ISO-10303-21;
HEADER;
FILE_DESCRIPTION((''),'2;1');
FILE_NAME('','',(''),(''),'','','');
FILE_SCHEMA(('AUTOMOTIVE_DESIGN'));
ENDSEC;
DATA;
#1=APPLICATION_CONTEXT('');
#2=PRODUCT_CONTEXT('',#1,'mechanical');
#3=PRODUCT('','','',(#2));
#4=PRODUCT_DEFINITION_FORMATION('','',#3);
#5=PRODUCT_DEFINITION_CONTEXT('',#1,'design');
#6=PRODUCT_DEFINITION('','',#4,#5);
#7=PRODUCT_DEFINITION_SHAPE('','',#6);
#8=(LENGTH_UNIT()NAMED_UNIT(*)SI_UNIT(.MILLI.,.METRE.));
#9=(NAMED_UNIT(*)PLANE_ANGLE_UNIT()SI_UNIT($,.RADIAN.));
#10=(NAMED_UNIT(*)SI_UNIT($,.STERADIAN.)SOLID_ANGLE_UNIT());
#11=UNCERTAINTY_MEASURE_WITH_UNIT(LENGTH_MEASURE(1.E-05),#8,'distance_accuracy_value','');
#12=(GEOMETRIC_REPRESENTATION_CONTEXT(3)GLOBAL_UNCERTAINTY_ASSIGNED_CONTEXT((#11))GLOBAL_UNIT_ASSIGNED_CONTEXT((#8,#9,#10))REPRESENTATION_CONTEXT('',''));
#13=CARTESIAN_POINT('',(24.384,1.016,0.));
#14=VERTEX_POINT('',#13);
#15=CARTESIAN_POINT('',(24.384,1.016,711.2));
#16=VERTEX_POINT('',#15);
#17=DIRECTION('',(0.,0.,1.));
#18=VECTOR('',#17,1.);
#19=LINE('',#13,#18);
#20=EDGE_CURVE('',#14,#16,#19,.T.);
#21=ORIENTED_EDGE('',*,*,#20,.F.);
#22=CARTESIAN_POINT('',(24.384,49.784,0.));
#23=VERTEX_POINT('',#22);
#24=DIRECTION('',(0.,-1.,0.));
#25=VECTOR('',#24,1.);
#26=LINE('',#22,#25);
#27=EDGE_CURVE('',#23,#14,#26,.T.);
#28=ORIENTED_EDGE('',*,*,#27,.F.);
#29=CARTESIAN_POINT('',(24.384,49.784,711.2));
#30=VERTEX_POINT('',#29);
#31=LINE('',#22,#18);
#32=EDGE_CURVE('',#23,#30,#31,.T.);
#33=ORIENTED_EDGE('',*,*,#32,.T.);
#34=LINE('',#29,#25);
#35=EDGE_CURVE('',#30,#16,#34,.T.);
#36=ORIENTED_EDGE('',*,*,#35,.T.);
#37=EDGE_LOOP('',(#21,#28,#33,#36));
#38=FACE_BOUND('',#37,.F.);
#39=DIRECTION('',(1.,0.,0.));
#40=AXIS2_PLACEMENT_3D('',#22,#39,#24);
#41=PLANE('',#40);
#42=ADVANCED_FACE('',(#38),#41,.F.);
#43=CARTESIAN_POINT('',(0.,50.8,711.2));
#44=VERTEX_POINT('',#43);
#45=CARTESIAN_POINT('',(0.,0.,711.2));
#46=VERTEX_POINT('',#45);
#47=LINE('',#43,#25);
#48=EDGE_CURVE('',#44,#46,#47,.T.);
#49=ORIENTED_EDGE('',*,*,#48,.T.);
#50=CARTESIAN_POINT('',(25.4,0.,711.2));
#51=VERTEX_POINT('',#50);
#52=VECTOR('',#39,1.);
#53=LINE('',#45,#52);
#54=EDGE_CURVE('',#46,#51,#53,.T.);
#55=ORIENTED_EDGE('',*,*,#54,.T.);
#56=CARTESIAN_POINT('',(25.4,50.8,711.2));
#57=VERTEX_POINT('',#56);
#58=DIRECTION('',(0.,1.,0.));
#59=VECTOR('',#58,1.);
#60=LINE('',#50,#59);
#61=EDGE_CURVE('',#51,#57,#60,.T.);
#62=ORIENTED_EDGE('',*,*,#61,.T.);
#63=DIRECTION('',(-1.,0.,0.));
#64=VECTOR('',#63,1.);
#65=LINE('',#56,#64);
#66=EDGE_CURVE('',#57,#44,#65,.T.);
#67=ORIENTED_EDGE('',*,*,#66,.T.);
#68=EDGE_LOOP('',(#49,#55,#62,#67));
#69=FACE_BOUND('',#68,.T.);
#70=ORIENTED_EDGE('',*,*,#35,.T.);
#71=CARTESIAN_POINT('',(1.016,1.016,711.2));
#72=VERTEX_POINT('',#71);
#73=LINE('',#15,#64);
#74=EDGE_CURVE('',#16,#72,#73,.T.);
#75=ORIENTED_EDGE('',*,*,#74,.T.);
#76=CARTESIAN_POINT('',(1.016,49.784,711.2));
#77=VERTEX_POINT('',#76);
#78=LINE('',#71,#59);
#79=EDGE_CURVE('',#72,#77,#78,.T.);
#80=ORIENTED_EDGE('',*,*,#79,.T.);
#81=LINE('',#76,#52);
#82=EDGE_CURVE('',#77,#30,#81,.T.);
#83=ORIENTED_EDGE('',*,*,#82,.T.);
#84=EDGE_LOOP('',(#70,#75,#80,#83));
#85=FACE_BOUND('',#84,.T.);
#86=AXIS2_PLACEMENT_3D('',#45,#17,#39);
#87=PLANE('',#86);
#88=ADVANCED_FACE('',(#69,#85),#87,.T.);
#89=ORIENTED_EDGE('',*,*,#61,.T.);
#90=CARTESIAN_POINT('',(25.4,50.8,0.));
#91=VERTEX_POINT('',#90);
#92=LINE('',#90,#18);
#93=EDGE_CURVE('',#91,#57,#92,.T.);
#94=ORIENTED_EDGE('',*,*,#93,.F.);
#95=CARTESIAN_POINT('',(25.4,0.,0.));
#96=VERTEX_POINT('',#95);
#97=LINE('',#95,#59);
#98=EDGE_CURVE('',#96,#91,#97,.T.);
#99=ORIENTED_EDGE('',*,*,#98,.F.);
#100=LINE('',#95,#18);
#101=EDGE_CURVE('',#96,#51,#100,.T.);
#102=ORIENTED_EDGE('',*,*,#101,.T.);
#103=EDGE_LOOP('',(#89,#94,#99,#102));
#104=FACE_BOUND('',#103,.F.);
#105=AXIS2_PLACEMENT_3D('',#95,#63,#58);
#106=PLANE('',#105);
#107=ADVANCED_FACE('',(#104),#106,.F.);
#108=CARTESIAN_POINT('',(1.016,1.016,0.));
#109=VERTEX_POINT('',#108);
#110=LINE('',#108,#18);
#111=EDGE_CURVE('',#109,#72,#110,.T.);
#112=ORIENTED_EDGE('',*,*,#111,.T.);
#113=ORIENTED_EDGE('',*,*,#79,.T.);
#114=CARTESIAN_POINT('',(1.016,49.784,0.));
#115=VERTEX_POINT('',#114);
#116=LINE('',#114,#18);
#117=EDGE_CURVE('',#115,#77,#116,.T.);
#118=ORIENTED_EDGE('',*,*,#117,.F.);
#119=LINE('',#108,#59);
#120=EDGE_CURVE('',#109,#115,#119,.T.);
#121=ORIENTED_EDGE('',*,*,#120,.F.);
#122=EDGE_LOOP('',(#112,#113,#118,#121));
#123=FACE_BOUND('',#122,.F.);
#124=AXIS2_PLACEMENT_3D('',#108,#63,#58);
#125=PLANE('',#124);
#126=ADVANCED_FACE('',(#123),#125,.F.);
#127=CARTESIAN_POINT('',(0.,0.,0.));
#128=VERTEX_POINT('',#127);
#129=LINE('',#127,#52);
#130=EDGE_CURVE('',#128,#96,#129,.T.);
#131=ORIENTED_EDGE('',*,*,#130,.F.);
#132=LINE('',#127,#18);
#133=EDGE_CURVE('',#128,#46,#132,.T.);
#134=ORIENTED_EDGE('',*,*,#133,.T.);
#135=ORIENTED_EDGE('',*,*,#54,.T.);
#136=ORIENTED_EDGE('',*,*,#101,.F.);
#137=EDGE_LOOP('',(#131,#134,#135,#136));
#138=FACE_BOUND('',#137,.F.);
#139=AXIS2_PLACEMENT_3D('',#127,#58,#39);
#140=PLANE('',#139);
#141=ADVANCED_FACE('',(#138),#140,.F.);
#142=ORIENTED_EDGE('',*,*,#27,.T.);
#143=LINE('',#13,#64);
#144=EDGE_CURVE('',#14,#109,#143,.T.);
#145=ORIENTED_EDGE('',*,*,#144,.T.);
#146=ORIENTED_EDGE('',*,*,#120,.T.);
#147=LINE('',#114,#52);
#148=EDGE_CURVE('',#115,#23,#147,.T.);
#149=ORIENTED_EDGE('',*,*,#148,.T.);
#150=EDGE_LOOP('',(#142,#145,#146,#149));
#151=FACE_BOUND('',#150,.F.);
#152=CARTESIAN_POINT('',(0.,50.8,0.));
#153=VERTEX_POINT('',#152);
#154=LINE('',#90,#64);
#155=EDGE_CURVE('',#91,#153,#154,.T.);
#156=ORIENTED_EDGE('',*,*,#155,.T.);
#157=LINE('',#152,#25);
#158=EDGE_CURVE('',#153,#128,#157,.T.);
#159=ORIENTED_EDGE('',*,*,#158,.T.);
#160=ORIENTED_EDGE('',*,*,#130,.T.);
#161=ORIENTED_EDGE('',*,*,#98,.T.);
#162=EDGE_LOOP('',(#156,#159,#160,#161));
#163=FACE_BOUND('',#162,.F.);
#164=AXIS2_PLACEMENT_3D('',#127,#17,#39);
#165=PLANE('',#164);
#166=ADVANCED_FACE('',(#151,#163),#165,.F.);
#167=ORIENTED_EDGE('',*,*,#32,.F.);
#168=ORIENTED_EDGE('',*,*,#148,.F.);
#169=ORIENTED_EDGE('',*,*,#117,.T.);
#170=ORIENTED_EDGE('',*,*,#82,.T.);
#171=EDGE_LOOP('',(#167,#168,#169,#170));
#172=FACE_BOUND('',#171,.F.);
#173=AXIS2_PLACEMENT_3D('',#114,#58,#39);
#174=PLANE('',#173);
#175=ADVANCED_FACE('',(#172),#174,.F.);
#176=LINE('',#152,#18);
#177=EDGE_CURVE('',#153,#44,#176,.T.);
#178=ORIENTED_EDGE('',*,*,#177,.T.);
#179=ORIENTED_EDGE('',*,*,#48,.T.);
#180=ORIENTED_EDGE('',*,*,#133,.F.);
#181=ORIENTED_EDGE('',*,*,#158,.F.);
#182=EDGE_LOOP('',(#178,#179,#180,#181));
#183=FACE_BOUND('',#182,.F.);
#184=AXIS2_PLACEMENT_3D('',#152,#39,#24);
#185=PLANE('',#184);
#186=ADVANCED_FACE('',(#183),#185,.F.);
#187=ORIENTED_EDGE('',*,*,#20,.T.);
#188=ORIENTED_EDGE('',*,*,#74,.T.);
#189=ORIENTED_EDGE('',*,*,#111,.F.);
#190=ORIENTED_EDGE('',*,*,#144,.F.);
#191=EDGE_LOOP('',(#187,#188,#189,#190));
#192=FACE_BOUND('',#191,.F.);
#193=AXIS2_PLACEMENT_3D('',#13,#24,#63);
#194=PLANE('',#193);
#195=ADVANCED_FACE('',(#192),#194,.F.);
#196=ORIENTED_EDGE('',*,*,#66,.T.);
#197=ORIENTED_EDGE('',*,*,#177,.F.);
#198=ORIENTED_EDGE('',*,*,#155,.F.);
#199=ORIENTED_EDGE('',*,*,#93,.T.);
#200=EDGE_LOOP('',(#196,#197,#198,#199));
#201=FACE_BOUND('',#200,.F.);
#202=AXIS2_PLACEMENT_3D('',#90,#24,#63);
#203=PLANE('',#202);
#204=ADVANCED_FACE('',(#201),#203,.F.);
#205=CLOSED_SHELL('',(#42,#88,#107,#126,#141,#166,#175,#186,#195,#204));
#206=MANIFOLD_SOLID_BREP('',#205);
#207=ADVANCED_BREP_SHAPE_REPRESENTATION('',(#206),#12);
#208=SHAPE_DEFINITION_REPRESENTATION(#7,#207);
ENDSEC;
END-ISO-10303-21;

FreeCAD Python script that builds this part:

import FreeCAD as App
import Part
import Sketcher

V = App.Vector
Q = App.Units.Quantity

doc = App.newDocument("Part")
body = doc.addObject("PartDesign::Body", "Body")

# Sketch on XY plane
sketch1 = doc.addObject("Sketcher::SketchObject", "Sketch")
body.addObject(sketch1)
sketch1.AttachmentSupport = (doc.XY_Plane, [""])
sketch1.MapMode = "FlatFace"
sketch1.addGeometry(Part.LineSegment(V(0, 51, 0), V(0, 0, 0)), False)
sketch1.addGeometry(Part.LineSegment(V(0, 0, 0), V(25, 0, 0)), False)
sketch1.addGeometry(Part.LineSegment(V(25, 0, 0), V(25, 51, 0)), False)
sketch1.addGeometry(Part.LineSegment(V(25, 51, 0), V(0, 51, 0)), False)
sketch1.addGeometry(Part.LineSegment(V(1, 50, 0), V(24, 50, 0)), False)
sketch1.addGeometry(Part.LineSegment(V(24, 50, 0), V(24, 1, 0)), False)
sketch1.addGeometry(Part.LineSegment(V(24, 1, 0), V(1, 1, 0)), False)
sketch1.addGeometry(Part.LineSegment(V(1, 1, 0), V(1, 50, 0)), False)
sketch1.addConstraint(Sketcher.Constraint("Coincident", 0, 2, 1, 1))
sketch1.addConstraint(Sketcher.Constraint("Coincident", 1, 2, 2, 1))
sketch1.addConstraint(Sketcher.Constraint("Coincident", 2, 2, 3, 1))
sketch1.addConstraint(Sketcher.Constraint("Coincident", 3, 2, 0, 1))
sketch1.addConstraint(Sketcher.Constraint("Coincident", 4, 2, 5, 1))
sketch1.addConstraint(Sketcher.Constraint("Coincident", 5, 2, 6, 1))
sketch1.addConstraint(Sketcher.Constraint("Coincident", 6, 2, 7, 1))
sketch1.addConstraint(Sketcher.Constraint("Coincident", 7, 2, 4, 1))
sketch1.addConstraint(Sketcher.Constraint("Vertical", 0))
sketch1.addConstraint(Sketcher.Constraint("Horizontal", 1))
sketch1.addConstraint(Sketcher.Constraint("Vertical", 2))
sketch1.addConstraint(Sketcher.Constraint("Horizontal", 3))
sketch1.addConstraint(Sketcher.Constraint("Horizontal", 4))
sketch1.addConstraint(Sketcher.Constraint("Vertical", 5))
sketch1.addConstraint(Sketcher.Constraint("Horizontal", 6))
sketch1.addConstraint(Sketcher.Constraint("Vertical", 7))
sketch1.addConstraint(Sketcher.Constraint("Coincident", 0, 2, -1, 1))
sketch1.addConstraint(Sketcher.Constraint("DistanceX", 1, 1, 1, 2, Q("1 in")))
sketch1.addConstraint(Sketcher.Constraint("DistanceY", 0, 2, 0, 1, Q("2 in")))
sketch1.addConstraint(Sketcher.Constraint("DistanceY", -1, 1, 5, 2, Q("0.04 in")))
sketch1.addConstraint(Sketcher.Constraint("DistanceX", -1, 1, 6, 2, Q("0.04 in")))
sketch1.addConstraint(Sketcher.Constraint("DistanceX", 4, 2, 2, 2, Q("0.04 in")))
sketch1.addConstraint(Sketcher.Constraint("DistanceY", 4, 2, 2, 2, Q("0.04 in")))
pad1 = doc.addObject("PartDesign::Pad", "Pad")
body.addObject(pad1)
pad1.Profile = sketch1
pad1.Length = Q("28 in")

doc.recompute()
